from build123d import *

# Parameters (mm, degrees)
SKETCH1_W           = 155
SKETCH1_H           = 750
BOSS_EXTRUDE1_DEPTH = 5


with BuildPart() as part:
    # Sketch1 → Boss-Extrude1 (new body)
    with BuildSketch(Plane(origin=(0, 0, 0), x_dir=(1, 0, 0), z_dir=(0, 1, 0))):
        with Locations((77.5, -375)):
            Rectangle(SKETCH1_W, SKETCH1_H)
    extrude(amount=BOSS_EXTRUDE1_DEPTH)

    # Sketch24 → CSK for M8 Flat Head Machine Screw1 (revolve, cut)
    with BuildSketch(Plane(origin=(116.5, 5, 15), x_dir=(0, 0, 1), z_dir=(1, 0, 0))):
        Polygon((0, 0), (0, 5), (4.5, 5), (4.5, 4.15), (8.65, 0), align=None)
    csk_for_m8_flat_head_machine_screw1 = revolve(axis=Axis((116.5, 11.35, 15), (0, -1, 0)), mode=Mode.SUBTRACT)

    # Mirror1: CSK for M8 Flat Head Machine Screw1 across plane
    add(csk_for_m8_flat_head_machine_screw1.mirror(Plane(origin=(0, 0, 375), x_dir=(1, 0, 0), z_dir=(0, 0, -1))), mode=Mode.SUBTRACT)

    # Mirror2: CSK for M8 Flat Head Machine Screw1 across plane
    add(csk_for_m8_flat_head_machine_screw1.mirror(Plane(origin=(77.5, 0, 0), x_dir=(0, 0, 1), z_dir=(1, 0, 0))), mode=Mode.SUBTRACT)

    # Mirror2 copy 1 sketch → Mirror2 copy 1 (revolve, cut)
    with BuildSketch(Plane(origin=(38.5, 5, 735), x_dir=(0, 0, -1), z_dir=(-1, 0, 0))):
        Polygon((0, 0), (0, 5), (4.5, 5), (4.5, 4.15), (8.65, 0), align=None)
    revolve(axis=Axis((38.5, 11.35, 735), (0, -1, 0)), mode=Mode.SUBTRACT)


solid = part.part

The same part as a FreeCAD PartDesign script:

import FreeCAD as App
import Part
import Sketcher

V = App.Vector
Q = App.Units.Quantity


def add_polygon(sketch, points):
    """Adds a closed chain of lines whose ends are joined by coincident constraints."""
    first, n = sketch.GeometryCount, len(points)
    for a, b in zip(points, points[1:] + points[:1]):
        sketch.addGeometry(Part.LineSegment(App.Vector(*a, 0), App.Vector(*b, 0)), False)
    for i in range(n):
        sketch.addConstraint(Sketcher.Constraint("Coincident", first + i, 2, first + (i + 1) % n, 1))

doc = App.newDocument("Part")
body = doc.addObject("PartDesign::Body", "Body")

# Sketch on XZ plane
sketch1 = body.newObject("Sketcher::SketchObject", "Sketch")
sketch1.AttachmentSupport = (doc.getObject("XZ_Plane"), [""])
sketch1.MapMode = "FlatFace"
add_polygon(sketch1, [(0, 0), (0, 750), (155, 750), (155, 0)])  # lines 0-3
sketch1.addConstraint(Sketcher.Constraint("Vertical", 0))
sketch1.addConstraint(Sketcher.Constraint("Horizontal", 1))
sketch1.addConstraint(Sketcher.Constraint("Vertical", 2))
sketch1.addConstraint(Sketcher.Constraint("Horizontal", 3))
sketch1.addConstraint(Sketcher.Constraint("Coincident", 3, 2, -1, 1))
sketch1.addConstraint(Sketcher.Constraint("DistanceX", 1, 1, 1, 2, Q("155 mm")))
sketch1.addConstraint(Sketcher.Constraint("DistanceY", 0, 1, 0, 2, Q("750 mm")))
pad1 = body.newObject("PartDesign::Pad", "Pad")
pad1.Profile = sketch1
pad1.Length = 5
pad1.Reversed = True

# Sketch on YZ plane
sketch2 = body.newObject("Sketcher::SketchObject", "Sketch001")
sketch2.AttachmentSupport = (doc.getObject("YZ_Plane"), [""])
sketch2.MapMode = "FlatFace"
sketch2.AttachmentOffset = App.Placement(V(0, 0, 116.5), App.Rotation())
add_polygon(sketch2, [(0, 15), (5, 15), (5, 23.65), (0.85, 19.5), (0, 19.5)])  # lines 0-4
sketch2.addGeometry(Part.LineSegment(V(5, 15, 0), V(0, 15, 0)), True)  # axis
sketch2.addConstraint(Sketcher.Constraint("Horizontal", 0))
sketch2.addConstraint(Sketcher.Constraint("Vertical", 1))
sketch2.addConstraint(Sketcher.Constraint("Horizontal", 3))
sketch2.addConstraint(Sketcher.Constraint("Vertical", 4))
sketch2.addConstraint(Sketcher.Constraint("Horizontal", 5))
sketch2.addConstraint(Sketcher.Constraint("Coincident", 5, 1, 0, 2))
sketch2.addConstraint(Sketcher.Constraint("PointOnObject", 3, 2, -2))
sketch2.addConstraint(Sketcher.Constraint("PointOnObject", 5, 2, -2))
sketch2.addConstraint(Sketcher.Constraint("DistanceX", 0, 1, 0, 2, Q("5 mm")))
sketch2.addConstraint(Sketcher.Constraint("Angle", 2, Q("-135 deg")))
sketch2.addConstraint(Sketcher.Constraint("DistanceY", 4, 2, 4, 1, Q("4.5 mm")))
sketch2.addConstraint(Sketcher.Constraint("DistanceY", -1, 1, 0, 2, Q("15 mm")))
sketch2.addConstraint(Sketcher.Constraint("DistanceX", 3, 2, 3, 1, Q("0.85 mm")))
groove = body.newObject("PartDesign::Groove", "Groove")
groove.Profile = sketch2
groove.ReferenceAxis = (sketch2, ["Axis0"])
groove.Angle = 360
doc.recompute()

datumplane = body.newObject("PartDesign::Plane", "DatumPlane")
datumplane.AttachmentSupport = (doc.getObject("XY_Plane"), [""])
datumplane.MapMode = "FlatFace"
datumplane.AttachmentOffset = App.Placement(V(0, 0, 375), App.Rotation())
mirrored = body.newObject("PartDesign::Mirrored", "Mirrored")
mirrored.Originals = [groove]
mirrored.MirrorPlane = (datumplane, [""])
body.Tip = mirrored
doc.recompute()

datumplane2 = body.newObject("PartDesign::Plane", "DatumPlane001")
datumplane2.AttachmentSupport = (doc.getObject("YZ_Plane"), [""])
datumplane2.MapMode = "FlatFace"
datumplane2.AttachmentOffset = App.Placement(V(0, 0, 77.5), App.Rotation())
mirrored2 = body.newObject("PartDesign::Mirrored", "Mirrored001")
mirrored2.Originals = [groove]
mirrored2.MirrorPlane = (datumplane2, [""])
body.Tip = mirrored2

# Sketch on YZ plane
sketch3 = body.newObject("Sketcher::SketchObject", "Sketch002")
sketch3.AttachmentSupport = (doc.getObject("YZ_Plane"), [""])
sketch3.MapMode = "FlatFace"
sketch3.AttachmentOffset = App.Placement(V(0, 0, 38.5), App.Rotation())
add_polygon(sketch3, [(0, 735), (5, 735), (5, 726.35), (0.85, 730.5), (0, 730.5)])  # lines 0-4
sketch3.addGeometry(Part.LineSegment(V(5, 735, 0), V(0, 735, 0)), True)  # axis
sketch3.addConstraint(Sketcher.Constraint("Horizontal", 0))
sketch3.addConstraint(Sketcher.Constraint("Vertical", 1))
sketch3.addConstraint(Sketcher.Constraint("Horizontal", 3))
sketch3.addConstraint(Sketcher.Constraint("Vertical", 4))
sketch3.addConstraint(Sketcher.Constraint("Horizontal", 5))
sketch3.addConstraint(Sketcher.Constraint("Coincident", 5, 1, 0, 2))
sketch3.addConstraint(Sketcher.Constraint("PointOnObject", 3, 2, -2))
sketch3.addConstraint(Sketcher.Constraint("PointOnObject", 5, 2, -2))
sketch3.addConstraint(Sketcher.Constraint("DistanceX", 0, 1, 0, 2, Q("5 mm")))
sketch3.addConstraint(Sketcher.Constraint("Angle", 2, Q("135 deg")))
sketch3.addConstraint(Sketcher.Constraint("DistanceY", 4, 1, 4, 2, Q("4.5 mm")))
sketch3.addConstraint(Sketcher.Constraint("DistanceY", -1, 1, 0, 2, Q("735 mm")))
sketch3.addConstraint(Sketcher.Constraint("DistanceX", 3, 2, 3, 1, Q("0.85 mm")))
groove2 = body.newObject("PartDesign::Groove", "Groove001")
groove2.Profile = sketch3
groove2.ReferenceAxis = (sketch3, ["Axis0"])
groove2.Angle = 360

doc.recompute()
